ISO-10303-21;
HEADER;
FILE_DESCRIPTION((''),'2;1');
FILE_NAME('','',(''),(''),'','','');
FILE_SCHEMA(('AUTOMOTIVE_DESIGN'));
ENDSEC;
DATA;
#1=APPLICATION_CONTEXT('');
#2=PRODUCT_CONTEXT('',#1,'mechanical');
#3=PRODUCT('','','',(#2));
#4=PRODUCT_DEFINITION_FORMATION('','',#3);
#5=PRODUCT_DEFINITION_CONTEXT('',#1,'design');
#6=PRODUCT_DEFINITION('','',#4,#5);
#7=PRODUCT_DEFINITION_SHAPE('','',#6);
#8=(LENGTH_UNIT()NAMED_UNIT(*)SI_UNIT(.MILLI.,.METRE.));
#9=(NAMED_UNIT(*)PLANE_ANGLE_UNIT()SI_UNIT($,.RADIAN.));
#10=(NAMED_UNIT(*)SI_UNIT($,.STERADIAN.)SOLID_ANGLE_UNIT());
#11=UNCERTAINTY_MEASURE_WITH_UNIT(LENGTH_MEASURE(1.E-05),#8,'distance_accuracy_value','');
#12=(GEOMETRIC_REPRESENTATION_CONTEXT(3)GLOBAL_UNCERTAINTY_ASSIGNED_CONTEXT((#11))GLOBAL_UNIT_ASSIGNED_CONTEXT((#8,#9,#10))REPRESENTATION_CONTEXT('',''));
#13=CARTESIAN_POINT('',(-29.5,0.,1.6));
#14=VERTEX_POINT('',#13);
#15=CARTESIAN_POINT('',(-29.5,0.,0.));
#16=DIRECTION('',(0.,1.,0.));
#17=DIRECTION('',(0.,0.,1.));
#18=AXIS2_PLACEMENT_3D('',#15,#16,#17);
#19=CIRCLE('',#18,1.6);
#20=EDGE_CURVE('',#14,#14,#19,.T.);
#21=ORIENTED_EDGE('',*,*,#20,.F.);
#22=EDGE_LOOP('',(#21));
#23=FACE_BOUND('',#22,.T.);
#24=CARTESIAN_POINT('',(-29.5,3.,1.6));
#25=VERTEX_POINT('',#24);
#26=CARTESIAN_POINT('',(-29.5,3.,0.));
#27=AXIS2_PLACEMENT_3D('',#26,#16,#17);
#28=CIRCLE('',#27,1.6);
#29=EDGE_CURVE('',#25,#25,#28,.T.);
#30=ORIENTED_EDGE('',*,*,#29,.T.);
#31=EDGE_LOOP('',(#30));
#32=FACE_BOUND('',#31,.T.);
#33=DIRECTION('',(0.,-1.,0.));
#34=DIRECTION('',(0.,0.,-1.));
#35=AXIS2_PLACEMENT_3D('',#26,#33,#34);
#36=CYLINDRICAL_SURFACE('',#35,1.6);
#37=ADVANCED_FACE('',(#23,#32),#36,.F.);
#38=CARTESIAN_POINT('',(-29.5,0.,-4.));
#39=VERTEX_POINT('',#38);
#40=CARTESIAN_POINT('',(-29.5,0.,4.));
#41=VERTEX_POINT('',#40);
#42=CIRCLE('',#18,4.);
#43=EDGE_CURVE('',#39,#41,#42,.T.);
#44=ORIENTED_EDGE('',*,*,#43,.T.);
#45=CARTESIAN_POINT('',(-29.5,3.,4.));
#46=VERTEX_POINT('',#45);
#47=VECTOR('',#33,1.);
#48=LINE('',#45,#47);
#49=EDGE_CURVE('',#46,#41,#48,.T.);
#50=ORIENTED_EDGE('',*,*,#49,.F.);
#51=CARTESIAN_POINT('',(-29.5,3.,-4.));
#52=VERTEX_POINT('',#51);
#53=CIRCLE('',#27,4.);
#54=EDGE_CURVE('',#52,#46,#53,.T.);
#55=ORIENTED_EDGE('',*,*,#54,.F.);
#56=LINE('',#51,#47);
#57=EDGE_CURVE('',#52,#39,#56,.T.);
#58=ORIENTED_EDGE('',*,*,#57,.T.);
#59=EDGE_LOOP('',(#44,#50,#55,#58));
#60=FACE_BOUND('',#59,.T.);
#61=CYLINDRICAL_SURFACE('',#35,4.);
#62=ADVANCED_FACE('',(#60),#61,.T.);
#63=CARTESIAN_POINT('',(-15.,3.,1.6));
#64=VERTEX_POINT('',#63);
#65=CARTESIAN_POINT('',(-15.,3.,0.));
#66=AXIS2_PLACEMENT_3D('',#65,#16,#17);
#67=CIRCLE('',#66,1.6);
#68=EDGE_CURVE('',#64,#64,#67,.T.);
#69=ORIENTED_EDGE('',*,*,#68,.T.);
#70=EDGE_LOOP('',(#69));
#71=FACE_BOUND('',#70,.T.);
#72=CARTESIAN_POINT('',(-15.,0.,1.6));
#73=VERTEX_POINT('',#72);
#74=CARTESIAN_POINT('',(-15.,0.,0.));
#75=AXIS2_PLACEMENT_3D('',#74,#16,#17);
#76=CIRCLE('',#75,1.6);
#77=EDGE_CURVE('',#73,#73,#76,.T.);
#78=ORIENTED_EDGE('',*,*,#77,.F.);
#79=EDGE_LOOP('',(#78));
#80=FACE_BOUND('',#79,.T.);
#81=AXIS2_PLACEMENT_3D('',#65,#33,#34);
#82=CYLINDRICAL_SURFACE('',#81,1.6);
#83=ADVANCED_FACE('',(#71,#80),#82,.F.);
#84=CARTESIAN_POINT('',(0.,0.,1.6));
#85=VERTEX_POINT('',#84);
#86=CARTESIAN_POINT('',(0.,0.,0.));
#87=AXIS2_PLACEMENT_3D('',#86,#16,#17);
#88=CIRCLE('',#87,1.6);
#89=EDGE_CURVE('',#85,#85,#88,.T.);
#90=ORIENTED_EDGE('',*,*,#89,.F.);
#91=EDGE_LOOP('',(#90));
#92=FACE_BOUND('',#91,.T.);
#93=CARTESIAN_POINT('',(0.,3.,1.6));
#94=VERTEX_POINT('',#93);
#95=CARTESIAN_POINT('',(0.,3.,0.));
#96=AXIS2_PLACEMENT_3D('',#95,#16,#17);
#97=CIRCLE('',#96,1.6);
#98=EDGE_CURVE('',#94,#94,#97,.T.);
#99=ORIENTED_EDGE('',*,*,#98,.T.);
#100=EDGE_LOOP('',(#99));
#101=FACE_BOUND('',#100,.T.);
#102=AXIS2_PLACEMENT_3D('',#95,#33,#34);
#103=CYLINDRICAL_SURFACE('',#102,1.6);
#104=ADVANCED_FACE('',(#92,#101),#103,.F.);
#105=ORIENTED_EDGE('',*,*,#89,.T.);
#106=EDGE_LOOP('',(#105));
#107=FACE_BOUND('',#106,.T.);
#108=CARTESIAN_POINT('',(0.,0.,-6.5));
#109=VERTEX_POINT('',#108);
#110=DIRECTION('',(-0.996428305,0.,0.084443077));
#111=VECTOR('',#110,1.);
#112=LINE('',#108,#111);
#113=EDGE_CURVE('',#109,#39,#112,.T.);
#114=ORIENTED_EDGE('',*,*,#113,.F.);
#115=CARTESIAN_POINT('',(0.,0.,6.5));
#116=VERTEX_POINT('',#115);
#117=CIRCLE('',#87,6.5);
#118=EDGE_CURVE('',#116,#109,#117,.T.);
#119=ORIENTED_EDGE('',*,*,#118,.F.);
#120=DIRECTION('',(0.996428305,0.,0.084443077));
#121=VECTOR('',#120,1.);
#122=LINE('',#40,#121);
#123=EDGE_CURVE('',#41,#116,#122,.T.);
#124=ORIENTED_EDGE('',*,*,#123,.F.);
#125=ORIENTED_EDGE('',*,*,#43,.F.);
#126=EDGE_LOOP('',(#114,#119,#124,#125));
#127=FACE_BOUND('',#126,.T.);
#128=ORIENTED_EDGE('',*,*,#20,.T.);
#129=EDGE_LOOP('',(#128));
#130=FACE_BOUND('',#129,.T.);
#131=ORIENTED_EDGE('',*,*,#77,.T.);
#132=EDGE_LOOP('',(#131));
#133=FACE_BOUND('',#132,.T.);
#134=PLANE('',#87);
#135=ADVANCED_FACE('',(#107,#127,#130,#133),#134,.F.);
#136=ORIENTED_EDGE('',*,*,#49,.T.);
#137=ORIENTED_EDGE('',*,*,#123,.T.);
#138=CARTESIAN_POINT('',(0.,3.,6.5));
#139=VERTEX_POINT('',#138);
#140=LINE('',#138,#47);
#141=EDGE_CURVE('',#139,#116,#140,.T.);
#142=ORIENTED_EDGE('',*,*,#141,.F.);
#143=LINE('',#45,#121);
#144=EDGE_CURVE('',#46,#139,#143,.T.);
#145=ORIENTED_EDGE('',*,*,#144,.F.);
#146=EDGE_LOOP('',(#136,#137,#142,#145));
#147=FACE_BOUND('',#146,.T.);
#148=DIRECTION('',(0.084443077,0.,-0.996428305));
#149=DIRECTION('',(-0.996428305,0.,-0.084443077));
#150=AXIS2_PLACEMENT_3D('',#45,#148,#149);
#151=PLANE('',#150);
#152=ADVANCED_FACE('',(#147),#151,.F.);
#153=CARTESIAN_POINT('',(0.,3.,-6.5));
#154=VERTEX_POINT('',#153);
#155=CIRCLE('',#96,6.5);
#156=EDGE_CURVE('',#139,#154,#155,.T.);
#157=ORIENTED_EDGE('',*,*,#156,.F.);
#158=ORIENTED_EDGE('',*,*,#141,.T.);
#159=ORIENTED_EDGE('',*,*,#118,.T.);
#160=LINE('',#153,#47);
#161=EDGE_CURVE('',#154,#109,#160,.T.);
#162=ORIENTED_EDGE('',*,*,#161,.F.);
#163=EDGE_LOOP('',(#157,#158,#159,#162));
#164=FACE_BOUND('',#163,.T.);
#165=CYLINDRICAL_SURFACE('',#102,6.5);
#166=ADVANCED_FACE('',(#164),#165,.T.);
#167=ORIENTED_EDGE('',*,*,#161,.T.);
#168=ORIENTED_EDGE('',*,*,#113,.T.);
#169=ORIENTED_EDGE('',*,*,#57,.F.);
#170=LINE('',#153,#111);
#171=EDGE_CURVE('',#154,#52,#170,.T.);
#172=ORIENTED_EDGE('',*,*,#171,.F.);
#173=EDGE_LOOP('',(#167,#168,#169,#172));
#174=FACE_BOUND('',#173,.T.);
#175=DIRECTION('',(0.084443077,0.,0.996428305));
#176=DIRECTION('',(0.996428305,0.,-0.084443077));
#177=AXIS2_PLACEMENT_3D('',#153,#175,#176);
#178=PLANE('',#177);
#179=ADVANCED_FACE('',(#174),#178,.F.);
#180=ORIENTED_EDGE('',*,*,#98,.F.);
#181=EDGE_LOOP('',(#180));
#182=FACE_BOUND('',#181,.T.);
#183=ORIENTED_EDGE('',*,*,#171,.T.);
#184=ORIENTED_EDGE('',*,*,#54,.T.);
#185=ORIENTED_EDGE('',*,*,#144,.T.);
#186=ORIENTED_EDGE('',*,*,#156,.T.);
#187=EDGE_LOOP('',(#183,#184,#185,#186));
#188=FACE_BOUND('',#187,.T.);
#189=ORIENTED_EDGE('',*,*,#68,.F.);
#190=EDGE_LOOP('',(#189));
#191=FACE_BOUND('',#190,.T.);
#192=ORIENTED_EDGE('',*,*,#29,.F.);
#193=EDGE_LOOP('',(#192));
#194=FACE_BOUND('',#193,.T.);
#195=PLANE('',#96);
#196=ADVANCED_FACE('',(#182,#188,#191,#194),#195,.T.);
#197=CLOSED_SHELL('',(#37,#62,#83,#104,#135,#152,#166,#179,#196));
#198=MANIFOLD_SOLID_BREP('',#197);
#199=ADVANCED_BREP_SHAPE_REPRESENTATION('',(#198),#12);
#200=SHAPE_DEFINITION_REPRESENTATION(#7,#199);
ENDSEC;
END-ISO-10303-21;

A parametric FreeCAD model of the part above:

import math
import FreeCAD as App
import Part
import Sketcher
from FreeCAD import Vector

doc = App.newDocument("Part")
body = doc.addObject("PartDesign::Body", "Body")

sketch1 = doc.addObject("Sketcher::SketchObject", "Sketch")
body.addObject(sketch1)
sketch1.AttachmentSupport = (doc.XZ_Plane, [""])
sketch1.MapMode = "FlatFace"
sketch1.addGeometry(Part.LineSegment(Vector(0, -6.5, 0), Vector(-29.5, -4, 0)), False)
sketch1.addGeometry(Part.ArcOfCircle(Part.Circle(Vector(-29.5, 0, 0), Vector(0, 0, 1), 4), math.radians(90), math.radians(270)), False)
sketch1.addGeometry(Part.LineSegment(Vector(-29.5, 4, 0), Vector(0, 6.5, 0)), False)
sketch1.addGeometry(Part.ArcOfCircle(Part.Circle(Vector(0, 0, 0), Vector(0, 0, 1), 6.5), math.radians(-90), math.radians(90)), False)
sketch1.addGeometry(Part.Circle(Vector(-29.5, 0, 0), Vector(0, 0, 1), 1.6), False)
sketch1.addGeometry(Part.Circle(Vector(-15, 0, 0), Vector(0, 0, 1), 1.6), False)
sketch1.addGeometry(Part.Circle(Vector(0, 0, 0), Vector(0, 0, 1), 1.6), False)
sketch1.addConstraint(Sketcher.Constraint("Coincident", 0, 2, 1, 2))
sketch1.addConstraint(Sketcher.Constraint("Coincident", 1, 1, 2, 1))
sketch1.addConstraint(Sketcher.Constraint("Coincident", 2, 2, 3, 2))
sketch1.addConstraint(Sketcher.Constraint("Coincident", 3, 1, 0, 1))
sketch1.addConstraint(Sketcher.Constraint("Coincident", 3, 3, -1, 1))
sketch1.addConstraint(Sketcher.Constraint("Coincident", 6, 3, -1, 1))
sketch1.addConstraint(Sketcher.Constraint("Coincident", 4, 3, 1, 3))
sketch1.addConstraint(Sketcher.Constraint("Equal", 4, 5))
sketch1.addConstraint(Sketcher.Constraint("Equal", 5, 6))
sketch1.addConstraint(Sketcher.Constraint("Symmetric", 0, 2, 1, 1, -1))
sketch1.addConstraint(Sketcher.Constraint("PointOnObject", 5, 3, -1))
sketch1.addConstraint(Sketcher.Constraint("PointOnObject", 2, 2, -2))
sketch1.addConstraint(Sketcher.Constraint("PointOnObject", 3, 1, -2))
sketch1.addConstraint(Sketcher.Constraint("Vertical", 4, 3, 0, 2))
sketch1.addConstraint(Sketcher.Constraint("Radius", 1, 4.0))
sketch1.addConstraint(Sketcher.Constraint("Diameter", 4, 3.2))
sketch1.addConstraint(Sketcher.Constraint("Radius", 3, 6.5))
sketch1.addConstraint(Sketcher.Constraint("DistanceX", 5, 3, -1, 1, 15.0))
sketch1.addConstraint(Sketcher.Constraint("DistanceX", 1, 3, -1, 1, 29.5))
pad1 = doc.addObject("PartDesign::Pad", "Pad")
body.addObject(pad1)
pad1.Profile = sketch1
pad1.Length = 3
pad1.Reversed = True

doc.recompute()
